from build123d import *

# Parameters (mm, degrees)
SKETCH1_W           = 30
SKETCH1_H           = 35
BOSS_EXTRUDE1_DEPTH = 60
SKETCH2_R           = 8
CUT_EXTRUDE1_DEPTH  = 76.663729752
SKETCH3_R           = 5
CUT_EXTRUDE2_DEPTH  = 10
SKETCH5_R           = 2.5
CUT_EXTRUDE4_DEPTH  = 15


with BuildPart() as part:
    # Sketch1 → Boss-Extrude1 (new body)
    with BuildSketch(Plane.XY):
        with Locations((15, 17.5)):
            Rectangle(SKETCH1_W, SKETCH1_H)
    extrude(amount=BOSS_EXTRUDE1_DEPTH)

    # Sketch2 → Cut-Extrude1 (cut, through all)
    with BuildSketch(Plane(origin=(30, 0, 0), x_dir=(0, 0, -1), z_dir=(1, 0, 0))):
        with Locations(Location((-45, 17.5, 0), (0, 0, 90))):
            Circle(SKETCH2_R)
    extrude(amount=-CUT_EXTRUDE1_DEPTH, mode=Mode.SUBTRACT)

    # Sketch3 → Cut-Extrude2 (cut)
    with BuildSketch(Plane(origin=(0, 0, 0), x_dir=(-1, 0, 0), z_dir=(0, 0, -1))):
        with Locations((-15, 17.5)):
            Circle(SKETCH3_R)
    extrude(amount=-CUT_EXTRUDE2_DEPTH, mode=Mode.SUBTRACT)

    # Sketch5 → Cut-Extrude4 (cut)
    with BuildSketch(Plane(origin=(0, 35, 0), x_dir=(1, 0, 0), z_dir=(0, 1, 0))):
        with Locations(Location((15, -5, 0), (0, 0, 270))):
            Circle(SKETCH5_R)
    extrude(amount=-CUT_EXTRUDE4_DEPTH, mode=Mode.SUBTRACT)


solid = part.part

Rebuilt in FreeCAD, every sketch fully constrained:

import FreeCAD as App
import Part
import Sketcher

V = App.Vector


def add_polygon(sketch, points):
    """Adds a closed chain of lines whose ends are joined by coincident constraints."""
    first, n = sketch.GeometryCount, len(points)
    for a, b in zip(points, points[1:] + points[:1]):
        sketch.addGeometry(Part.LineSegment(App.Vector(*a, 0), App.Vector(*b, 0)), False)
    for i in range(n):
        sketch.addConstraint(Sketcher.Constraint("Coincident", first + i, 2, first + (i + 1) % n, 1))

doc = App.newDocument("Part")
body = doc.addObject("PartDesign::Body", "Body")

sketch1 = body.newObject("Sketcher::SketchObject", "Sketch")
sketch1.AttachmentSupport = (doc.getObject("XY_Plane"), [""])
sketch1.MapMode = "FlatFace"
add_polygon(sketch1, [(0, 35), (0, 0), (30, 0), (30, 35)])
sketch1.addConstraint(Sketcher.Constraint("Vertical", 0))
sketch1.addConstraint(Sketcher.Constraint("Horizontal", 1))
sketch1.addConstraint(Sketcher.Constraint("Vertical", 2))
sketch1.addConstraint(Sketcher.Constraint("Horizontal", 3))
sketch1.addConstraint(Sketcher.Constraint("Coincident", 0, 2, -1, 1))
sketch1.addConstraint(Sketcher.Constraint("DistanceX", 1, 1, 1, 2, 30.0))
sketch1.addConstraint(Sketcher.Constraint("DistanceY", 0, 2, 0, 1, 35.0))
pad1 = body.newObject("PartDesign::Pad", "Pad")
pad1.Profile = sketch1
pad1.Length = 60

sketch2 = body.newObject("Sketcher::SketchObject", "Sketch001")
sketch2.AttachmentSupport = (doc.getObject("YZ_Plane"), [""])
sketch2.MapMode = "FlatFace"
sketch2.AttachmentOffset = App.Placement(V(0, 0, 30), App.Rotation())
sketch2.addGeometry(Part.Circle(V(17.5, 45, 0), V(0, 0, 1), 8), False)
sketch2.addConstraint(Sketcher.Constraint("Diameter", 0, 16.0))
sketch2.addConstraint(Sketcher.Constraint("DistanceY", -1, 1, 0, 3, 45.0))
sketch2.addConstraint(Sketcher.Constraint("DistanceX", -1, 1, 0, 3, 17.5))
pocket1 = body.newObject("PartDesign::Pocket", "Pocket")
pocket1.Profile = sketch2
pocket1.Type = "ThroughAll"

sketch3 = body.newObject("Sketcher::SketchObject", "Sketch002")
sketch3.AttachmentSupport = (doc.getObject("XY_Plane"), [""])
sketch3.MapMode = "FlatFace"
sketch3.addGeometry(Part.Circle(V(15, 17.5, 0), V(0, 0, 1), 5), False)
sketch3.addConstraint(Sketcher.Constraint("Diameter", 0, 10.0))
sketch3.addConstraint(Sketcher.Constraint("DistanceX", -1, 1, 0, 3, 15.0))
sketch3.addConstraint(Sketcher.Constraint("DistanceY", -1, 1, 0, 3, 17.5))
pocket2 = body.newObject("PartDesign::Pocket", "Pocket001")
pocket2.Profile = sketch3
pocket2.Length = 10
pocket2.Reversed = True

sketch4 = body.newObject("Sketcher::SketchObject", "Sketch003")
sketch4.AttachmentSupport = (doc.getObject("XZ_Plane"), [""])
sketch4.MapMode = "FlatFace"
sketch4.AttachmentOffset = App.Placement(V(0, 0, -35), App.Rotation())
sketch4.addGeometry(Part.Circle(V(15, 5, 0), V(0, 0, 1), 2.5), False)
sketch4.addConstraint(Sketcher.Constraint("Diameter", 0, 5.0))
sketch4.addConstraint(Sketcher.Constraint("DistanceX", -1, 1, 0, 3, 15.0))
sketch4.addConstraint(Sketcher.Constraint("DistanceY", -1, 1, 0, 3, 5.0))
pocket3 = body.newObject("PartDesign::Pocket", "Pocket002")
pocket3.Profile = sketch4
pocket3.Length = 15
pocket3.Reversed = True

doc.recompute()
